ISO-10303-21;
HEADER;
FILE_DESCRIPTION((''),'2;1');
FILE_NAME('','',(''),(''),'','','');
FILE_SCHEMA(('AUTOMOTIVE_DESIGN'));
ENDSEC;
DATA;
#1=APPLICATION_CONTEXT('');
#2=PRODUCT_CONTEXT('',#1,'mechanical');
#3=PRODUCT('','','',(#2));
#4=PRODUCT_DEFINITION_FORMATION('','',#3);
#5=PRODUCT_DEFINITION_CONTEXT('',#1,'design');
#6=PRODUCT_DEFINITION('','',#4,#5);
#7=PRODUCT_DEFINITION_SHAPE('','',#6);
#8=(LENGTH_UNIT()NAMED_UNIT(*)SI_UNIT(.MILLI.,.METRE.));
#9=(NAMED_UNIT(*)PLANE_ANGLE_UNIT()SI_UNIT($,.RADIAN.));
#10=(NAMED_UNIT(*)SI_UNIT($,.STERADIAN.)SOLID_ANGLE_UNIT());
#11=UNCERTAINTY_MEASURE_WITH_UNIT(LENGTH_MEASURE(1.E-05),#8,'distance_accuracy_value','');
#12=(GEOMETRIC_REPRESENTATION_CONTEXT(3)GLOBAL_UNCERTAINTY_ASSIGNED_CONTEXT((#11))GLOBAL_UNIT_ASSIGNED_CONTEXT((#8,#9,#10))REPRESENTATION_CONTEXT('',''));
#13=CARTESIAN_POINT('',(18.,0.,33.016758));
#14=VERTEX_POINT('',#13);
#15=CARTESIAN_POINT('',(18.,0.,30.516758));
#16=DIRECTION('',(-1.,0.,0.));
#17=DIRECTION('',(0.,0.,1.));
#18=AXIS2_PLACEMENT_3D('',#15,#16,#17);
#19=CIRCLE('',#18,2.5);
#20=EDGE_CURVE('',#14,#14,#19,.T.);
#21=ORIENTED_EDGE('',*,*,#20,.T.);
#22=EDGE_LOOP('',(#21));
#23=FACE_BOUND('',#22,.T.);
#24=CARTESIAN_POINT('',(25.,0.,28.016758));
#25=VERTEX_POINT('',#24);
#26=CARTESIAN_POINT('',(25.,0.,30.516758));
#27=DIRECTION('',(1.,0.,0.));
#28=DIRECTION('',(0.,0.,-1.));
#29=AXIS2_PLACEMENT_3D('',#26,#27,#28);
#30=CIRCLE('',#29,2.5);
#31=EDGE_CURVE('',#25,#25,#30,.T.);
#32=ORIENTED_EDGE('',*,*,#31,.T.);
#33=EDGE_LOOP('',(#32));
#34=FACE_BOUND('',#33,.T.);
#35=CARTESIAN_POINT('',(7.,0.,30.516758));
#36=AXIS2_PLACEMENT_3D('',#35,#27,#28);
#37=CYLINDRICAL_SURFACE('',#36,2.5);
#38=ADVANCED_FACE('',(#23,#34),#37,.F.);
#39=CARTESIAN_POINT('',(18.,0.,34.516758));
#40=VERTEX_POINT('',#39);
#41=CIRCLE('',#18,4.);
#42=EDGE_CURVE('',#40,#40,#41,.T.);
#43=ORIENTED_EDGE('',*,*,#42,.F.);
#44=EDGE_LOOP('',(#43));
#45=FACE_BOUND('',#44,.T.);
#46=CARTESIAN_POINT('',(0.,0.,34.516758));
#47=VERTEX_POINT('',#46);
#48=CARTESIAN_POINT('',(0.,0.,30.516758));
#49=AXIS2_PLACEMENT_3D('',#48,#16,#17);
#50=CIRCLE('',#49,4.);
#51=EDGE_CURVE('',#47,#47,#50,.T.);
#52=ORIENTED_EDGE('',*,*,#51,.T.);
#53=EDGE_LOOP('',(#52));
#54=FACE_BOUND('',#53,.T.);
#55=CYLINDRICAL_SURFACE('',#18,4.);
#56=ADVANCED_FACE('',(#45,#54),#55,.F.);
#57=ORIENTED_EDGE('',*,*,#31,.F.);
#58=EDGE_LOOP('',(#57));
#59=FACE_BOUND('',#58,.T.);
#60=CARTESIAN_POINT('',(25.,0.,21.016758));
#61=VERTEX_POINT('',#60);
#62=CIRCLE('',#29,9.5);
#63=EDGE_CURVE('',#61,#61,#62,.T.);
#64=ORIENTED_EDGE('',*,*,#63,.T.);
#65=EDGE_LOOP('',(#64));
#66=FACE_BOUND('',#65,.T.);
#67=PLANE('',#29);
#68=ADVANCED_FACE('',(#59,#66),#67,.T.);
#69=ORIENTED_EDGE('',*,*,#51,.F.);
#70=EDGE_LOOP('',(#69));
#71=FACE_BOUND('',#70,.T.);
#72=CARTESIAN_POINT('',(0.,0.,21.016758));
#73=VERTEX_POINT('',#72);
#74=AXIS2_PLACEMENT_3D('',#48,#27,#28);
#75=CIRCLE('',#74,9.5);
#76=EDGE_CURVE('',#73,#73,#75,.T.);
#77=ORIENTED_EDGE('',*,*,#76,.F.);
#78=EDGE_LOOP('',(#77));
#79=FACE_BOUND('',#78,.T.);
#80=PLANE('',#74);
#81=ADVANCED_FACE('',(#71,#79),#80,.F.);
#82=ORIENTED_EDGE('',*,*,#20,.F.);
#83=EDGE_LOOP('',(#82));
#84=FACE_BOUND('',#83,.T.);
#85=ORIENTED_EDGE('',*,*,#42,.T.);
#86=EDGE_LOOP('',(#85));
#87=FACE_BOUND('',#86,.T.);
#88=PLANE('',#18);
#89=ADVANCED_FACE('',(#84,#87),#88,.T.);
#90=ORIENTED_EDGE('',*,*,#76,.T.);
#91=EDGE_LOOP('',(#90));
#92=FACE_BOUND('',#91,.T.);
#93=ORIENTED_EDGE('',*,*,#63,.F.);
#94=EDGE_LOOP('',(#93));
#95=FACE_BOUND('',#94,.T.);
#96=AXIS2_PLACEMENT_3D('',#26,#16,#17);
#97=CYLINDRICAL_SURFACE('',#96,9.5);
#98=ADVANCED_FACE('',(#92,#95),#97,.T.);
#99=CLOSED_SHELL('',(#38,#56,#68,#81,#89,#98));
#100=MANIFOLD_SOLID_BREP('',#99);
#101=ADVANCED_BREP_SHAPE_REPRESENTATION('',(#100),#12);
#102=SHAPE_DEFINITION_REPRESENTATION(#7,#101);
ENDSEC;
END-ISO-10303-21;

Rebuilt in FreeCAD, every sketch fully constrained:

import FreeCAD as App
import Part
import Sketcher
from FreeCAD import Vector
Q = App.Units.Quantity

doc = App.newDocument("Part")
body = doc.addObject("PartDesign::Body", "Body")

sketch1 = doc.addObject("Sketcher::SketchObject", "Sketch")
body.addObject(sketch1)
sketch1.AttachmentSupport = (doc.YZ_Plane, [""])
sketch1.MapMode = "FlatFace"
sketch1.addGeometry(Part.Circle(Vector(0, 31, 0), Vector(0, 0, 1), 10), False)
sketch1.addConstraint([
    Sketcher.Constraint("PointOnObject", 0, 3, -2),
    Sketcher.Constraint("Diameter", 0, Q("19 mm")),
    Sketcher.Constraint("DistanceY", -1, 1, 0, 3, Q("30.516758 mm")),
])
pad1 = doc.addObject("PartDesign::Pad", "Pad")
body.addObject(pad1)
pad1.Profile = sketch1
pad1.Length = 25

sketch2 = doc.addObject("Sketcher::SketchObject", "Sketch001")
body.addObject(sketch2)
sketch2.AttachmentSupport = (doc.YZ_Plane, [""])
sketch2.MapMode = "FlatFace"
sketch2.addGeometry(Part.Circle(Vector(0, 30.5, 0), Vector(0, 0, 1), 4), False)
sketch2.addConstraint([
    Sketcher.Constraint("PointOnObject", 0, 3, -2),
    Sketcher.Constraint("Diameter", 0, Q("8 mm")),
    Sketcher.Constraint("DistanceY", -1, 1, 0, 3, Q("30.516758 mm")),
])
pocket1 = doc.addObject("PartDesign::Pocket", "Pocket")
body.addObject(pocket1)
pocket1.Profile = sketch2
pocket1.Length = 18
pocket1.Reversed = True

sketch3 = doc.addObject("Sketcher::SketchObject", "Sketch002")
body.addObject(sketch3)
sketch3.AttachmentSupport = (doc.YZ_Plane, [""])
sketch3.MapMode = "FlatFace"
sketch3.AttachmentOffset = App.Placement(Vector(0, 0, 25), App.Rotation())
sketch3.addGeometry(Part.Circle(Vector(0, 30.5, 0), Vector(0, 0, 1), 2.5), False)
sketch3.addConstraint([
    Sketcher.Constraint("PointOnObject", 0, 3, -2),
    Sketcher.Constraint("Diameter", 0, Q("5 mm")),
    Sketcher.Constraint("DistanceY", -1, 1, 0, 3, Q("30.516758 mm")),
])
pocket2 = doc.addObject("PartDesign::Pocket", "Pocket001")
body.addObject(pocket2)
pocket2.Profile = sketch3
pocket2.Length = 18

doc.recompute()
